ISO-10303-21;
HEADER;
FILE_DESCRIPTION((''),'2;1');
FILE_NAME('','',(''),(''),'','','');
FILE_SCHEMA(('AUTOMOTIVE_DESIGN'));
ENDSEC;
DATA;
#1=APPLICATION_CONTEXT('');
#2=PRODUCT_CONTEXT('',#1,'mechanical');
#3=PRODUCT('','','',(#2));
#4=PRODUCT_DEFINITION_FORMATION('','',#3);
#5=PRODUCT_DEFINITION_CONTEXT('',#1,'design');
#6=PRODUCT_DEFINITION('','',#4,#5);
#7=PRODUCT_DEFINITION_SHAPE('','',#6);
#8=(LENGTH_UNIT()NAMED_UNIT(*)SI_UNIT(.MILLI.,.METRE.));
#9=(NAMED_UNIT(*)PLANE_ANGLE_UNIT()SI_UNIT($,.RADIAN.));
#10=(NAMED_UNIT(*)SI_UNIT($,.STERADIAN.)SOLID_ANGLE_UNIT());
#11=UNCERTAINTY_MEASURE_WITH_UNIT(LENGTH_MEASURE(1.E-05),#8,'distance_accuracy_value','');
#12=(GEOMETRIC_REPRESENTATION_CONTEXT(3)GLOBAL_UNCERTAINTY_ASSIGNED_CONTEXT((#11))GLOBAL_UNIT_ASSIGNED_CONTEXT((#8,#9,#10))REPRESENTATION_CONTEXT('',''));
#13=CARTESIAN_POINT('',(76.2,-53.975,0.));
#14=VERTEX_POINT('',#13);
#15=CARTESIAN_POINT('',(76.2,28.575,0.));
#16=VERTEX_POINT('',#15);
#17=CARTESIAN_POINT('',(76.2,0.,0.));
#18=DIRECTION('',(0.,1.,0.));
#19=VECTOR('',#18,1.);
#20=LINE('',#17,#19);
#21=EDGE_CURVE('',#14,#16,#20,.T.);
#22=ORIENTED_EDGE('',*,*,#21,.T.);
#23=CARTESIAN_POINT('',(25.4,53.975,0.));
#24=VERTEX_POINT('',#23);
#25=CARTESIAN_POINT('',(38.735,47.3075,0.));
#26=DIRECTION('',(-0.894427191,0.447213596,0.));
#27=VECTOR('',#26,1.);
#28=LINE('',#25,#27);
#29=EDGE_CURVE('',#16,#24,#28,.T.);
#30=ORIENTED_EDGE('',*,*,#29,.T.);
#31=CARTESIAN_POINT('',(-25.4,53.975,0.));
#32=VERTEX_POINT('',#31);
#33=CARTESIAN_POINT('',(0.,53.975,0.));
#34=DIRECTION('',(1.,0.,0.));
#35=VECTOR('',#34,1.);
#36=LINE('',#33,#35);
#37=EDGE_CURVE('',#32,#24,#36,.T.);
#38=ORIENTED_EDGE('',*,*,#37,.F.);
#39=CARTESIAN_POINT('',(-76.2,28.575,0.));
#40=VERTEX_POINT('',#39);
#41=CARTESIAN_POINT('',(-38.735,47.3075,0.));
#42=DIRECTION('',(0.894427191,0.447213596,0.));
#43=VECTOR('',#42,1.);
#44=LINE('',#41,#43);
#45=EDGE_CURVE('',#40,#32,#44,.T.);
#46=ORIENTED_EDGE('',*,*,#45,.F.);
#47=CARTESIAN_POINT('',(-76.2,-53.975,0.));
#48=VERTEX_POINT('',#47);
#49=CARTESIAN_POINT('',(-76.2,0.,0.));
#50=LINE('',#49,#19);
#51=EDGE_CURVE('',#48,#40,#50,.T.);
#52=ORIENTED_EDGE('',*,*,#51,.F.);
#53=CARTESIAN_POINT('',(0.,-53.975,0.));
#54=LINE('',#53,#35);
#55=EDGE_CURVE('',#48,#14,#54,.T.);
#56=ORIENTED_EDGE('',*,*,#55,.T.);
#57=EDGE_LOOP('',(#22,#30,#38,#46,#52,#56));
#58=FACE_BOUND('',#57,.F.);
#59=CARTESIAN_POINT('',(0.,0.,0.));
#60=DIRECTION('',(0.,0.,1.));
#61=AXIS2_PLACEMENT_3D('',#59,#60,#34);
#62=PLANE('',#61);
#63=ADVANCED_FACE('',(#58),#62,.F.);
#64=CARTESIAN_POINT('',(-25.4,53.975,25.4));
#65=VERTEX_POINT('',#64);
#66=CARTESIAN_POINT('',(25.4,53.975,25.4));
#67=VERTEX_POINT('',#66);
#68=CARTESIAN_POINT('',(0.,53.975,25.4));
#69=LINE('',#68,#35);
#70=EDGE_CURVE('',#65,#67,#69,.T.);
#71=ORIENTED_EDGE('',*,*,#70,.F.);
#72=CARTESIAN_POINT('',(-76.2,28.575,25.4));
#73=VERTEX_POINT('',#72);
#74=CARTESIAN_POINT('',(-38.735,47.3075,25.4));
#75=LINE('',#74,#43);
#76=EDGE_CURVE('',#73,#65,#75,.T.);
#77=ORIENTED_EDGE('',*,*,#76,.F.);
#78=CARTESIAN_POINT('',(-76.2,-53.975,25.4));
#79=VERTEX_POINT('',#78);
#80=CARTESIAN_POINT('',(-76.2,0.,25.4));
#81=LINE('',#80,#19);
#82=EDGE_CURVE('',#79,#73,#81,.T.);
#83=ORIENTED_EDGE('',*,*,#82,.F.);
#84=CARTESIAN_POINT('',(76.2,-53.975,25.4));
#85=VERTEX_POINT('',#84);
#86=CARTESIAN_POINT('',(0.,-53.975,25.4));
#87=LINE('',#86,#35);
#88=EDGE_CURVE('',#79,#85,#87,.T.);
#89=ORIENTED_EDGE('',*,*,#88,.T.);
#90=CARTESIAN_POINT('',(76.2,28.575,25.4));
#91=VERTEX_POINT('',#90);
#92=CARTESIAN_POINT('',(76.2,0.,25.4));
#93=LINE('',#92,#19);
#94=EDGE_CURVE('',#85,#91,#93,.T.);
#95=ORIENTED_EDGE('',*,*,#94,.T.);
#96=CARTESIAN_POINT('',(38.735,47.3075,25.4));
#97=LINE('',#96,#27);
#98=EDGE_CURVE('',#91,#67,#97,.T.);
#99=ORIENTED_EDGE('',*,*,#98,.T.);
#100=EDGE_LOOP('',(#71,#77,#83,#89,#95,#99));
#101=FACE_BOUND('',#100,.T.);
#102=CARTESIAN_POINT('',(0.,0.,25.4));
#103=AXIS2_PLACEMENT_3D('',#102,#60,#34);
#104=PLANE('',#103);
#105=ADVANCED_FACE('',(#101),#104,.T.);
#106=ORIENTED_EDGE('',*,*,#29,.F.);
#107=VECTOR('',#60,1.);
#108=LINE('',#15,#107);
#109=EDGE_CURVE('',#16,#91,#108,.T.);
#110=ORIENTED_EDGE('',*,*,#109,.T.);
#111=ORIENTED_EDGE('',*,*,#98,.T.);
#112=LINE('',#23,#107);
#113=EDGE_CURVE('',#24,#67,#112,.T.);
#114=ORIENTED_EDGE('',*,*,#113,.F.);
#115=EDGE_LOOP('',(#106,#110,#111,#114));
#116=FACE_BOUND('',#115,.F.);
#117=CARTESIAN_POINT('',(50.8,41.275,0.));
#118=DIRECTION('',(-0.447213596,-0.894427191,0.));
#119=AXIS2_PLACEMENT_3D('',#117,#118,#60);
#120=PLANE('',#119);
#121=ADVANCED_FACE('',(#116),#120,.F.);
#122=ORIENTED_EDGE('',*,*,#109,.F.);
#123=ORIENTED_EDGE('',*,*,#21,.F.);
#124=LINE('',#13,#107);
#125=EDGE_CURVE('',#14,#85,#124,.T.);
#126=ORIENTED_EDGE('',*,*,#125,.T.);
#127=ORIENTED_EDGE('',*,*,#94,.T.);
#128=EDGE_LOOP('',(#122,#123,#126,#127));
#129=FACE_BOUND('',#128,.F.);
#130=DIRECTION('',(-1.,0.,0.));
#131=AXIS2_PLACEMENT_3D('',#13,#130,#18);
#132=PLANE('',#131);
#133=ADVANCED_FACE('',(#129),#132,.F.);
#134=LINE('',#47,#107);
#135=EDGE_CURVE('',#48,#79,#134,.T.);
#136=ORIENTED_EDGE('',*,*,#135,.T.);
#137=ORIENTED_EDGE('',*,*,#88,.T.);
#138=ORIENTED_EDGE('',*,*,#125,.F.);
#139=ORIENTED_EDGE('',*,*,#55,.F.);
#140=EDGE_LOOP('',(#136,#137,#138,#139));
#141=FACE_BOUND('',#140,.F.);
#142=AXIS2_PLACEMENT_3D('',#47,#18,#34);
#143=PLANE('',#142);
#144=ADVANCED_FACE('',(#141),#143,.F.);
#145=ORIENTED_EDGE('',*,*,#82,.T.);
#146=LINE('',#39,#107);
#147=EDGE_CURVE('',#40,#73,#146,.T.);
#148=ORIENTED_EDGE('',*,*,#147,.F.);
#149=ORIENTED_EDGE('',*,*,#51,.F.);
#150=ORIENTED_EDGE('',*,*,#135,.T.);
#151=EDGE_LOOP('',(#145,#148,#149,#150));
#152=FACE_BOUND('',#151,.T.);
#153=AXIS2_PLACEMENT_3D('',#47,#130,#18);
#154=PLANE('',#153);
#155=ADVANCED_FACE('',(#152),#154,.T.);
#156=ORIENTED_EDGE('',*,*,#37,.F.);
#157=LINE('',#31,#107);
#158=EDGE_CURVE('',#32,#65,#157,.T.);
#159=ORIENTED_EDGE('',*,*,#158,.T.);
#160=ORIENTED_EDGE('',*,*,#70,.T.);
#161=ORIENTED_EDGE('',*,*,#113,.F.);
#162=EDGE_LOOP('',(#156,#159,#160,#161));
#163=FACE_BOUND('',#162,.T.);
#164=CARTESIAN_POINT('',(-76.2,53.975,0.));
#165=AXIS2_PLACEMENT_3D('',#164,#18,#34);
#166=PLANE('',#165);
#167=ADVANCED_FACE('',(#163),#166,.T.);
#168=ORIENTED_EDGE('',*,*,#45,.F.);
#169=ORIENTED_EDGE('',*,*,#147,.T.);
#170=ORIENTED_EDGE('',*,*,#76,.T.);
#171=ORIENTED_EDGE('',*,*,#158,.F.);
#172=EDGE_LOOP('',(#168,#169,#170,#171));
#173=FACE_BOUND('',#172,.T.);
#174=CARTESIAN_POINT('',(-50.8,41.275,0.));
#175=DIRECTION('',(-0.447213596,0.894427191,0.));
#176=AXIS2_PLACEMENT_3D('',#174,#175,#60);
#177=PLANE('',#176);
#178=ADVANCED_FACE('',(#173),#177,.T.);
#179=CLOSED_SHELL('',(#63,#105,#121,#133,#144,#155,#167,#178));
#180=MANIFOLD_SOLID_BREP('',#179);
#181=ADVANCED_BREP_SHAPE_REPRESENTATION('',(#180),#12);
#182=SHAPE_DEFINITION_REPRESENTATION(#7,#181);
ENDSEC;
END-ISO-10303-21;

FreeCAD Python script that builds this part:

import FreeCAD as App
import Part
import Sketcher
Q = App.Units.Quantity


def edges_at(feature, points):
    """Names of the edges that pass closest to the given points."""
    edges = feature.Shape.Edges
    near = lambda p: min(range(len(edges)), key=lambda i: edges[i].distToShape(Part.Vertex(*p))[0])
    return sorted({f"Edge{near(p) + 1}" for p in points})


def add_polygon(sketch, points):
    """Adds a closed chain of lines whose ends are joined by coincident constraints."""
    first, n = sketch.GeometryCount, len(points)
    for a, b in zip(points, points[1:] + points[:1]):
        sketch.addGeometry(Part.LineSegment(App.Vector(*a, 0), App.Vector(*b, 0)), False)
    for i in range(n):
        sketch.addConstraint(Sketcher.Constraint("Coincident", first + i, 2, first + (i + 1) % n, 1))

doc = App.newDocument("Part")
params = doc.addObject("Spreadsheet::Sheet", "Params")
for row, (alias, value) in enumerate([
    ("sketch1_width", "6 in"),
    ("sketch1_height", "4.25 in"),
    ("pad1_length", "1 in"),
    ("chamfer_size", "1 in"),
    ("chamfer_size2", "2 in"),
], start=1):
    params.set(f"A{row}", alias)
    params.set(f"B{row}", "=" + value)
    params.setAlias(f"B{row}", alias)

body = doc.addObject("PartDesign::Body", "Body")

# Sketch on XY plane
sketch1 = doc.addObject("Sketcher::SketchObject", "Sketch")
body.addObject(sketch1)
sketch1.AttachmentSupport = (doc.XY_Plane, [""])
sketch1.MapMode = "FlatFace"
add_polygon(sketch1, [(-76.2, 53.975), (-76.2, -53.975), (76.2, -53.975), (76.2, 53.975)])  # lines 0-3
sketch1.addConstraint([
    Sketcher.Constraint("Vertical", 0),
    Sketcher.Constraint("Horizontal", 1),
    Sketcher.Constraint("Vertical", 2),
    Sketcher.Constraint("Horizontal", 3),
    Sketcher.Constraint("Symmetric", 0, 2, 2, 2, -1, 1),
    Sketcher.Constraint("DistanceX", 1, 1, 1, 2, Q("6 in")),
    Sketcher.Constraint("DistanceY", 0, 2, 0, 1, Q("4.25 in")),
])
sketch1.setExpression("Constraints[9]", "Params.sketch1_width")
sketch1.setExpression("Constraints[10]", "Params.sketch1_height")
pad1 = doc.addObject("PartDesign::Pad", "Pad")
body.addObject(pad1)
pad1.Profile = sketch1
pad1.setExpression("Length", "Params.pad1_length")
doc.recompute()

chamfer = doc.addObject("PartDesign::Chamfer", "Chamfer")
body.addObject(chamfer)
chamfer.Base = (pad1, edges_at(pad1, [(-76.2, 53.975, 12.7), (76.2, 53.975, 12.7)]))
chamfer.ChamferType = "Two distances"
chamfer.setExpression("Size", "Params.chamfer_size")
chamfer.setExpression("Size2", "Params.chamfer_size2")

doc.recompute()
